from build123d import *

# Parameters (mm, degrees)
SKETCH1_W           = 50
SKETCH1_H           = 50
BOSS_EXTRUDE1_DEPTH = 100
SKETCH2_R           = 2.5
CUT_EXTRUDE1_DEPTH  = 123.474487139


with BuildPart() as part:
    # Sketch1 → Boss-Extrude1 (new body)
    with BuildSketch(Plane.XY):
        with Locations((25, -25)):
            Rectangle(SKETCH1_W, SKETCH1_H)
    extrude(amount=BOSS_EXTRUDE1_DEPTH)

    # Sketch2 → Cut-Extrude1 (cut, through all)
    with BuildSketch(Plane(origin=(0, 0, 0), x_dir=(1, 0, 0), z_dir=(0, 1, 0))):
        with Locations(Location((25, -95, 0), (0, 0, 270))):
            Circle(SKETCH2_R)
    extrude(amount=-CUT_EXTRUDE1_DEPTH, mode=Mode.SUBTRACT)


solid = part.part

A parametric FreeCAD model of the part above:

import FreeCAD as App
import Part
import Sketcher

doc = App.newDocument("Part")
params = doc.addObject("Spreadsheet::Sheet", "Params")
for row, (alias, value) in enumerate([
    ("sketch1_width", "50 mm"),
    ("pad1_length", "100 mm"),
    ("sketch2_diameter", "5 mm"),
], start=1):
    params.set(f"A{row}", alias)
    params.set(f"B{row}", "=" + value)
    params.setAlias(f"B{row}", alias)

body = doc.addObject("PartDesign::Body", "Body")

sketch1 = doc.addObject("Sketcher::SketchObject", "Sketch")
body.addObject(sketch1)
sketch1.AttachmentSupport = (doc.XY_Plane, [""])
sketch1.MapMode = "FlatFace"
sketch1.addGeometry(Part.LineSegment(App.Vector(0, 0, 0), App.Vector(0, -50, 0)), False)
sketch1.addGeometry(Part.LineSegment(App.Vector(0, -50, 0), App.Vector(50, -50, 0)), False)
sketch1.addGeometry(Part.LineSegment(App.Vector(50, -50, 0), App.Vector(50, 0, 0)), False)
sketch1.addGeometry(Part.LineSegment(App.Vector(50, 0, 0), App.Vector(0, 0, 0)), False)
sketch1.addConstraint(Sketcher.Constraint("Coincident", 0, 2, 1, 1))
sketch1.addConstraint(Sketcher.Constraint("Coincident", 1, 2, 2, 1))
sketch1.addConstraint(Sketcher.Constraint("Coincident", 2, 2, 3, 1))
sketch1.addConstraint(Sketcher.Constraint("Coincident", 3, 2, 0, 1))
sketch1.addConstraint(Sketcher.Constraint("Vertical", 0))
sketch1.addConstraint(Sketcher.Constraint("Horizontal", 1))
sketch1.addConstraint(Sketcher.Constraint("Vertical", 2))
sketch1.addConstraint(Sketcher.Constraint("Horizontal", 3))
sketch1.addConstraint(Sketcher.Constraint("Coincident", 3, 2, -1, 1))
sketch1.addConstraint(Sketcher.Constraint("Equal", 3, 0))
sketch1.addConstraint(Sketcher.Constraint("DistanceX", 1, 1, 1, 2, 50.0))
sketch1.setExpression("Constraints[10]", "Params.sketch1_width")
pad1 = doc.addObject("PartDesign::Pad", "Pad")
body.addObject(pad1)
pad1.Profile = sketch1
pad1.setExpression("Length", "Params.pad1_length")

sketch2 = doc.addObject("Sketcher::SketchObject", "Sketch001")
body.addObject(sketch2)
sketch2.AttachmentSupport = (doc.XZ_Plane, [""])
sketch2.MapMode = "FlatFace"
sketch2.addGeometry(Part.Circle(App.Vector(25, 95, 0), App.Vector(0, 0, 1), 2.5), False)
sketch2.addConstraint(Sketcher.Constraint("Diameter", 0, 5.0))
sketch2.addConstraint(Sketcher.Constraint("DistanceX", -1, 1, 0, 3, 25.0))
sketch2.addConstraint(Sketcher.Constraint("DistanceY", -1, 1, 0, 3, 95.0))
sketch2.setExpression("Constraints[0]", "Params.sketch2_diameter")
pocket1 = doc.addObject("PartDesign::Pocket", "Pocket")
body.addObject(pocket1)
pocket1.Profile = sketch2
pocket1.Type = "ThroughAll"
pocket1.Reversed = True

doc.recompute()
